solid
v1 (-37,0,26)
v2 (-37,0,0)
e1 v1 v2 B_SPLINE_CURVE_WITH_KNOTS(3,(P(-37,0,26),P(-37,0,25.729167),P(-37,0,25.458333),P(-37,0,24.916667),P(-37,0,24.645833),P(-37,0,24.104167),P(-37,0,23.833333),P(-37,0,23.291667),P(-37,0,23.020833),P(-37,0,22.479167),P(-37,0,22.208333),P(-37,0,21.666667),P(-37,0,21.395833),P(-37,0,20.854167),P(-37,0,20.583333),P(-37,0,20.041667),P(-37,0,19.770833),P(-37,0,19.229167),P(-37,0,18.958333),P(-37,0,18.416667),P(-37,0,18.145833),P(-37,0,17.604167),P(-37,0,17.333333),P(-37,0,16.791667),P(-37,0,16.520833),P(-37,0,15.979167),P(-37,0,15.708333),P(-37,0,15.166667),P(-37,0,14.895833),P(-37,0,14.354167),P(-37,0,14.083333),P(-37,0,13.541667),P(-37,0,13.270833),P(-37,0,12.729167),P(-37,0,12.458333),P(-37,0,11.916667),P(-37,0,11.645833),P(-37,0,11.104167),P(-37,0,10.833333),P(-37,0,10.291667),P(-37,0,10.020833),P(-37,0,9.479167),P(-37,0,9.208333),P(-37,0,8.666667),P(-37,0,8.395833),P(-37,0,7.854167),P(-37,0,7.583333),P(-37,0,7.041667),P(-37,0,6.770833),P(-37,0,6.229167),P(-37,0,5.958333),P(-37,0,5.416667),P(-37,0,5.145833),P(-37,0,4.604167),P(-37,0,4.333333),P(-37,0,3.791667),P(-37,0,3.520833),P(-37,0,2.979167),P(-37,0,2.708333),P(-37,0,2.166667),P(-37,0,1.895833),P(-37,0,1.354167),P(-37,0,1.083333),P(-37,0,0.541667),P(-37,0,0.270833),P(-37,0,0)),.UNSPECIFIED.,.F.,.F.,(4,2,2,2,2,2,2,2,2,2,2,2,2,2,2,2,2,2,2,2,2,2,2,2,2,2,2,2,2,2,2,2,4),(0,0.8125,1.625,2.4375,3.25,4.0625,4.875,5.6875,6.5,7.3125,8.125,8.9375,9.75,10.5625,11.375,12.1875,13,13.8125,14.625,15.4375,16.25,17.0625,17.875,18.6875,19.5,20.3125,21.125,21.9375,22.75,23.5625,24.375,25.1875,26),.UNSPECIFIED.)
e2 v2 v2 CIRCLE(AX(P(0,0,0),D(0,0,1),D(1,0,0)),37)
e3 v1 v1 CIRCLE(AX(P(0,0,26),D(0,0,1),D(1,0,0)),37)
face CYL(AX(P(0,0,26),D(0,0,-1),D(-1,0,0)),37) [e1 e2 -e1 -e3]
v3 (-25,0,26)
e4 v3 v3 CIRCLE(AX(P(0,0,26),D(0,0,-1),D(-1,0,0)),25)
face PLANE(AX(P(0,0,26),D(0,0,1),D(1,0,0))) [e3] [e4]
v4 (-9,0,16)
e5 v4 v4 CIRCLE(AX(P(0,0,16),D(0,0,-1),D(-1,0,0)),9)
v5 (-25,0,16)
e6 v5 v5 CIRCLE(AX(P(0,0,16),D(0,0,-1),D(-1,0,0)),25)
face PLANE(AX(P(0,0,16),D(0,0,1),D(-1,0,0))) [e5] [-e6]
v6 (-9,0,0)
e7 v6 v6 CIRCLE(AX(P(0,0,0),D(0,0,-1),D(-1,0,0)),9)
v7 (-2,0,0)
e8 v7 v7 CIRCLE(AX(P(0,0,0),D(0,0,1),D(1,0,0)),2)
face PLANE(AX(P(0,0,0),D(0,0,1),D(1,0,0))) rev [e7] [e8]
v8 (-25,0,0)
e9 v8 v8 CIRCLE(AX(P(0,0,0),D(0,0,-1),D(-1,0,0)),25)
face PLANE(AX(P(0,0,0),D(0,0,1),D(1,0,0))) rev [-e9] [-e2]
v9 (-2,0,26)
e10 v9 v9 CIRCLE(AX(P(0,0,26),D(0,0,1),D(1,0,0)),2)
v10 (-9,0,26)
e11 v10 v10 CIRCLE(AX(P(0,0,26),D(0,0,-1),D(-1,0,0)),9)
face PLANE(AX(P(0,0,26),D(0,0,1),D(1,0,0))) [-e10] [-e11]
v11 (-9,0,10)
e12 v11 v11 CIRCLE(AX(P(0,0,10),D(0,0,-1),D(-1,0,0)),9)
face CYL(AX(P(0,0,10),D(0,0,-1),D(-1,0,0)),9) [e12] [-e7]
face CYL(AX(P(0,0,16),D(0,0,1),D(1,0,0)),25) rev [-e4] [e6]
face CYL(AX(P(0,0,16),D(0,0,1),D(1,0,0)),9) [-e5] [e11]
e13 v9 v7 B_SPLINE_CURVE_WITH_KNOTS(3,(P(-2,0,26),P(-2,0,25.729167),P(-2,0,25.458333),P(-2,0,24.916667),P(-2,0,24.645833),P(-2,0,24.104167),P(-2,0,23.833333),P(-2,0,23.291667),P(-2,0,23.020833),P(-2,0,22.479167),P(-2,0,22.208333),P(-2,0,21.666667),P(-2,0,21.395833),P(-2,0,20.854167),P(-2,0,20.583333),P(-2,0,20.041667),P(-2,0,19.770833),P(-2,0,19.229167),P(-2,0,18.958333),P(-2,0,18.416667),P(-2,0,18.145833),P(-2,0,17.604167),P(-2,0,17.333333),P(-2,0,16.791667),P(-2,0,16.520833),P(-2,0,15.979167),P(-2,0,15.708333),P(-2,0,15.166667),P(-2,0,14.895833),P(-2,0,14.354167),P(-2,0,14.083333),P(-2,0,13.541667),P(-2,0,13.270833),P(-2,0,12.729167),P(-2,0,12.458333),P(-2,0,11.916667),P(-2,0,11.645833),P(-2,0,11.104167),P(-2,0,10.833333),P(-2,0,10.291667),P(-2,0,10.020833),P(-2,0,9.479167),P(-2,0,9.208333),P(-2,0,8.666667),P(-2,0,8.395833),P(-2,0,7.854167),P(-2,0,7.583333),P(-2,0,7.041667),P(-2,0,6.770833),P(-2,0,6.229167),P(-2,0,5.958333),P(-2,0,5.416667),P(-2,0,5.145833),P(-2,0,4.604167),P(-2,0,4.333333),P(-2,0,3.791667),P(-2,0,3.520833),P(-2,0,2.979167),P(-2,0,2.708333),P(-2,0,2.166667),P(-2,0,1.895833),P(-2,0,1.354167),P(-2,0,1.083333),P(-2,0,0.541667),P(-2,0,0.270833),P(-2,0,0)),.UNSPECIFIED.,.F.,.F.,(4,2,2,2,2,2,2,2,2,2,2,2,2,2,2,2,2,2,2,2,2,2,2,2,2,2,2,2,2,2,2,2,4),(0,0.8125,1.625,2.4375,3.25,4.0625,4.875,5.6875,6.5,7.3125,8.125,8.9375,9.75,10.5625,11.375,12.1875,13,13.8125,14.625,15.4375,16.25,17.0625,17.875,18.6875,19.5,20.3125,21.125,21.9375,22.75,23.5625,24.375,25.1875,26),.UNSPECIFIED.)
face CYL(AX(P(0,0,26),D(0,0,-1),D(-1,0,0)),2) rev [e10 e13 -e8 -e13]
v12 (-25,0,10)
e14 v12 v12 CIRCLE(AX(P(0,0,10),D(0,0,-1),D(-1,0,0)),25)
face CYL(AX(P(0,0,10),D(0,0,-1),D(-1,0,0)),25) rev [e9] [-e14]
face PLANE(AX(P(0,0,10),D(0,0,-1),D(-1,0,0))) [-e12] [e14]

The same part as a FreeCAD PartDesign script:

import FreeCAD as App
import Part
import Sketcher

V = App.Vector

doc = App.newDocument("Part")
params = doc.addObject("Spreadsheet::Sheet", "Params")
for row, (alias, value) in enumerate([
    ("sketch1_diameter", "74 mm"),
    ("sketch1_diameter2", "4 mm"),
    ("pad1_length", "26 mm"),
    ("sketch2_diameter", "50 mm"),
    ("sketch2_diameter2", "18 mm"),
    ("pocket1_length", "10 mm"),
], start=1):
    params.set(f"A{row}", alias)
    params.set(f"B{row}", "=" + value)
    params.setAlias(f"B{row}", alias)

body = doc.addObject("PartDesign::Body", "Body")

# Sketch on XY plane
sketch1 = body.newObject("Sketcher::SketchObject", "Sketch")
sketch1.AttachmentSupport = (doc.getObject("XY_Plane"), [""])
sketch1.MapMode = "FlatFace"
sketch1.addGeometry([
    Part.Circle(V(0, 0, 0), V(0, 0, 1), 37),
    Part.Circle(V(0, 0, 0), V(0, 0, 1), 2),
], False)
sketch1.addConstraint([
    Sketcher.Constraint("Coincident", 0, 3, -1, 1),
    Sketcher.Constraint("Coincident", 1, 3, -1, 1),
    Sketcher.Constraint("Diameter", 0, 74.0),
    Sketcher.Constraint("Diameter", 1, 4.0),
])
sketch1.setExpression("Constraints[2]", "Params.sketch1_diameter")
sketch1.setExpression("Constraints[3]", "Params.sketch1_diameter2")
pad1 = body.newObject("PartDesign::Pad", "Pad")
pad1.Profile = sketch1
pad1.setExpression("Length", "Params.pad1_length")

# Sketch on XY plane
sketch2 = body.newObject("Sketcher::SketchObject", "Sketch001")
sketch2.AttachmentSupport = (doc.getObject("XY_Plane"), [""])
sketch2.MapMode = "FlatFace"
sketch2.addGeometry([
    Part.Circle(V(0, 0, 0), V(0, 0, 1), 25),
    Part.Circle(V(0, 0, 0), V(0, 0, 1), 9),
], False)
sketch2.addConstraint([
    Sketcher.Constraint("Coincident", 0, 3, -1, 1),
    Sketcher.Constraint("Coincident", 1, 3, -1, 1),
    Sketcher.Constraint("Diameter", 0, 50.0),
    Sketcher.Constraint("Diameter", 1, 18.0),
])
sketch2.setExpression("Constraints[2]", "Params.sketch2_diameter")
sketch2.setExpression("Constraints[3]", "Params.sketch2_diameter2")
pocket1 = body.newObject("PartDesign::Pocket", "Pocket")
pocket1.Profile = sketch2
pocket1.setExpression("Length", "Params.pocket1_length")
pocket1.Reversed = True
doc.recompute()

datumplane = body.newObject("PartDesign::Plane", "DatumPlane")
datumplane.AttachmentSupport = (doc.getObject("XY_Plane"), [""])
datumplane.MapMode = "FlatFace"
datumplane.AttachmentOffset = App.Placement(V(0, 0, 13), App.Rotation())
mirrored = body.newObject("PartDesign::Mirrored", "Mirrored")
mirrored.Originals = [pocket1]
mirrored.MirrorPlane = (datumplane, [""])
body.Tip = mirrored

doc.recompute()
